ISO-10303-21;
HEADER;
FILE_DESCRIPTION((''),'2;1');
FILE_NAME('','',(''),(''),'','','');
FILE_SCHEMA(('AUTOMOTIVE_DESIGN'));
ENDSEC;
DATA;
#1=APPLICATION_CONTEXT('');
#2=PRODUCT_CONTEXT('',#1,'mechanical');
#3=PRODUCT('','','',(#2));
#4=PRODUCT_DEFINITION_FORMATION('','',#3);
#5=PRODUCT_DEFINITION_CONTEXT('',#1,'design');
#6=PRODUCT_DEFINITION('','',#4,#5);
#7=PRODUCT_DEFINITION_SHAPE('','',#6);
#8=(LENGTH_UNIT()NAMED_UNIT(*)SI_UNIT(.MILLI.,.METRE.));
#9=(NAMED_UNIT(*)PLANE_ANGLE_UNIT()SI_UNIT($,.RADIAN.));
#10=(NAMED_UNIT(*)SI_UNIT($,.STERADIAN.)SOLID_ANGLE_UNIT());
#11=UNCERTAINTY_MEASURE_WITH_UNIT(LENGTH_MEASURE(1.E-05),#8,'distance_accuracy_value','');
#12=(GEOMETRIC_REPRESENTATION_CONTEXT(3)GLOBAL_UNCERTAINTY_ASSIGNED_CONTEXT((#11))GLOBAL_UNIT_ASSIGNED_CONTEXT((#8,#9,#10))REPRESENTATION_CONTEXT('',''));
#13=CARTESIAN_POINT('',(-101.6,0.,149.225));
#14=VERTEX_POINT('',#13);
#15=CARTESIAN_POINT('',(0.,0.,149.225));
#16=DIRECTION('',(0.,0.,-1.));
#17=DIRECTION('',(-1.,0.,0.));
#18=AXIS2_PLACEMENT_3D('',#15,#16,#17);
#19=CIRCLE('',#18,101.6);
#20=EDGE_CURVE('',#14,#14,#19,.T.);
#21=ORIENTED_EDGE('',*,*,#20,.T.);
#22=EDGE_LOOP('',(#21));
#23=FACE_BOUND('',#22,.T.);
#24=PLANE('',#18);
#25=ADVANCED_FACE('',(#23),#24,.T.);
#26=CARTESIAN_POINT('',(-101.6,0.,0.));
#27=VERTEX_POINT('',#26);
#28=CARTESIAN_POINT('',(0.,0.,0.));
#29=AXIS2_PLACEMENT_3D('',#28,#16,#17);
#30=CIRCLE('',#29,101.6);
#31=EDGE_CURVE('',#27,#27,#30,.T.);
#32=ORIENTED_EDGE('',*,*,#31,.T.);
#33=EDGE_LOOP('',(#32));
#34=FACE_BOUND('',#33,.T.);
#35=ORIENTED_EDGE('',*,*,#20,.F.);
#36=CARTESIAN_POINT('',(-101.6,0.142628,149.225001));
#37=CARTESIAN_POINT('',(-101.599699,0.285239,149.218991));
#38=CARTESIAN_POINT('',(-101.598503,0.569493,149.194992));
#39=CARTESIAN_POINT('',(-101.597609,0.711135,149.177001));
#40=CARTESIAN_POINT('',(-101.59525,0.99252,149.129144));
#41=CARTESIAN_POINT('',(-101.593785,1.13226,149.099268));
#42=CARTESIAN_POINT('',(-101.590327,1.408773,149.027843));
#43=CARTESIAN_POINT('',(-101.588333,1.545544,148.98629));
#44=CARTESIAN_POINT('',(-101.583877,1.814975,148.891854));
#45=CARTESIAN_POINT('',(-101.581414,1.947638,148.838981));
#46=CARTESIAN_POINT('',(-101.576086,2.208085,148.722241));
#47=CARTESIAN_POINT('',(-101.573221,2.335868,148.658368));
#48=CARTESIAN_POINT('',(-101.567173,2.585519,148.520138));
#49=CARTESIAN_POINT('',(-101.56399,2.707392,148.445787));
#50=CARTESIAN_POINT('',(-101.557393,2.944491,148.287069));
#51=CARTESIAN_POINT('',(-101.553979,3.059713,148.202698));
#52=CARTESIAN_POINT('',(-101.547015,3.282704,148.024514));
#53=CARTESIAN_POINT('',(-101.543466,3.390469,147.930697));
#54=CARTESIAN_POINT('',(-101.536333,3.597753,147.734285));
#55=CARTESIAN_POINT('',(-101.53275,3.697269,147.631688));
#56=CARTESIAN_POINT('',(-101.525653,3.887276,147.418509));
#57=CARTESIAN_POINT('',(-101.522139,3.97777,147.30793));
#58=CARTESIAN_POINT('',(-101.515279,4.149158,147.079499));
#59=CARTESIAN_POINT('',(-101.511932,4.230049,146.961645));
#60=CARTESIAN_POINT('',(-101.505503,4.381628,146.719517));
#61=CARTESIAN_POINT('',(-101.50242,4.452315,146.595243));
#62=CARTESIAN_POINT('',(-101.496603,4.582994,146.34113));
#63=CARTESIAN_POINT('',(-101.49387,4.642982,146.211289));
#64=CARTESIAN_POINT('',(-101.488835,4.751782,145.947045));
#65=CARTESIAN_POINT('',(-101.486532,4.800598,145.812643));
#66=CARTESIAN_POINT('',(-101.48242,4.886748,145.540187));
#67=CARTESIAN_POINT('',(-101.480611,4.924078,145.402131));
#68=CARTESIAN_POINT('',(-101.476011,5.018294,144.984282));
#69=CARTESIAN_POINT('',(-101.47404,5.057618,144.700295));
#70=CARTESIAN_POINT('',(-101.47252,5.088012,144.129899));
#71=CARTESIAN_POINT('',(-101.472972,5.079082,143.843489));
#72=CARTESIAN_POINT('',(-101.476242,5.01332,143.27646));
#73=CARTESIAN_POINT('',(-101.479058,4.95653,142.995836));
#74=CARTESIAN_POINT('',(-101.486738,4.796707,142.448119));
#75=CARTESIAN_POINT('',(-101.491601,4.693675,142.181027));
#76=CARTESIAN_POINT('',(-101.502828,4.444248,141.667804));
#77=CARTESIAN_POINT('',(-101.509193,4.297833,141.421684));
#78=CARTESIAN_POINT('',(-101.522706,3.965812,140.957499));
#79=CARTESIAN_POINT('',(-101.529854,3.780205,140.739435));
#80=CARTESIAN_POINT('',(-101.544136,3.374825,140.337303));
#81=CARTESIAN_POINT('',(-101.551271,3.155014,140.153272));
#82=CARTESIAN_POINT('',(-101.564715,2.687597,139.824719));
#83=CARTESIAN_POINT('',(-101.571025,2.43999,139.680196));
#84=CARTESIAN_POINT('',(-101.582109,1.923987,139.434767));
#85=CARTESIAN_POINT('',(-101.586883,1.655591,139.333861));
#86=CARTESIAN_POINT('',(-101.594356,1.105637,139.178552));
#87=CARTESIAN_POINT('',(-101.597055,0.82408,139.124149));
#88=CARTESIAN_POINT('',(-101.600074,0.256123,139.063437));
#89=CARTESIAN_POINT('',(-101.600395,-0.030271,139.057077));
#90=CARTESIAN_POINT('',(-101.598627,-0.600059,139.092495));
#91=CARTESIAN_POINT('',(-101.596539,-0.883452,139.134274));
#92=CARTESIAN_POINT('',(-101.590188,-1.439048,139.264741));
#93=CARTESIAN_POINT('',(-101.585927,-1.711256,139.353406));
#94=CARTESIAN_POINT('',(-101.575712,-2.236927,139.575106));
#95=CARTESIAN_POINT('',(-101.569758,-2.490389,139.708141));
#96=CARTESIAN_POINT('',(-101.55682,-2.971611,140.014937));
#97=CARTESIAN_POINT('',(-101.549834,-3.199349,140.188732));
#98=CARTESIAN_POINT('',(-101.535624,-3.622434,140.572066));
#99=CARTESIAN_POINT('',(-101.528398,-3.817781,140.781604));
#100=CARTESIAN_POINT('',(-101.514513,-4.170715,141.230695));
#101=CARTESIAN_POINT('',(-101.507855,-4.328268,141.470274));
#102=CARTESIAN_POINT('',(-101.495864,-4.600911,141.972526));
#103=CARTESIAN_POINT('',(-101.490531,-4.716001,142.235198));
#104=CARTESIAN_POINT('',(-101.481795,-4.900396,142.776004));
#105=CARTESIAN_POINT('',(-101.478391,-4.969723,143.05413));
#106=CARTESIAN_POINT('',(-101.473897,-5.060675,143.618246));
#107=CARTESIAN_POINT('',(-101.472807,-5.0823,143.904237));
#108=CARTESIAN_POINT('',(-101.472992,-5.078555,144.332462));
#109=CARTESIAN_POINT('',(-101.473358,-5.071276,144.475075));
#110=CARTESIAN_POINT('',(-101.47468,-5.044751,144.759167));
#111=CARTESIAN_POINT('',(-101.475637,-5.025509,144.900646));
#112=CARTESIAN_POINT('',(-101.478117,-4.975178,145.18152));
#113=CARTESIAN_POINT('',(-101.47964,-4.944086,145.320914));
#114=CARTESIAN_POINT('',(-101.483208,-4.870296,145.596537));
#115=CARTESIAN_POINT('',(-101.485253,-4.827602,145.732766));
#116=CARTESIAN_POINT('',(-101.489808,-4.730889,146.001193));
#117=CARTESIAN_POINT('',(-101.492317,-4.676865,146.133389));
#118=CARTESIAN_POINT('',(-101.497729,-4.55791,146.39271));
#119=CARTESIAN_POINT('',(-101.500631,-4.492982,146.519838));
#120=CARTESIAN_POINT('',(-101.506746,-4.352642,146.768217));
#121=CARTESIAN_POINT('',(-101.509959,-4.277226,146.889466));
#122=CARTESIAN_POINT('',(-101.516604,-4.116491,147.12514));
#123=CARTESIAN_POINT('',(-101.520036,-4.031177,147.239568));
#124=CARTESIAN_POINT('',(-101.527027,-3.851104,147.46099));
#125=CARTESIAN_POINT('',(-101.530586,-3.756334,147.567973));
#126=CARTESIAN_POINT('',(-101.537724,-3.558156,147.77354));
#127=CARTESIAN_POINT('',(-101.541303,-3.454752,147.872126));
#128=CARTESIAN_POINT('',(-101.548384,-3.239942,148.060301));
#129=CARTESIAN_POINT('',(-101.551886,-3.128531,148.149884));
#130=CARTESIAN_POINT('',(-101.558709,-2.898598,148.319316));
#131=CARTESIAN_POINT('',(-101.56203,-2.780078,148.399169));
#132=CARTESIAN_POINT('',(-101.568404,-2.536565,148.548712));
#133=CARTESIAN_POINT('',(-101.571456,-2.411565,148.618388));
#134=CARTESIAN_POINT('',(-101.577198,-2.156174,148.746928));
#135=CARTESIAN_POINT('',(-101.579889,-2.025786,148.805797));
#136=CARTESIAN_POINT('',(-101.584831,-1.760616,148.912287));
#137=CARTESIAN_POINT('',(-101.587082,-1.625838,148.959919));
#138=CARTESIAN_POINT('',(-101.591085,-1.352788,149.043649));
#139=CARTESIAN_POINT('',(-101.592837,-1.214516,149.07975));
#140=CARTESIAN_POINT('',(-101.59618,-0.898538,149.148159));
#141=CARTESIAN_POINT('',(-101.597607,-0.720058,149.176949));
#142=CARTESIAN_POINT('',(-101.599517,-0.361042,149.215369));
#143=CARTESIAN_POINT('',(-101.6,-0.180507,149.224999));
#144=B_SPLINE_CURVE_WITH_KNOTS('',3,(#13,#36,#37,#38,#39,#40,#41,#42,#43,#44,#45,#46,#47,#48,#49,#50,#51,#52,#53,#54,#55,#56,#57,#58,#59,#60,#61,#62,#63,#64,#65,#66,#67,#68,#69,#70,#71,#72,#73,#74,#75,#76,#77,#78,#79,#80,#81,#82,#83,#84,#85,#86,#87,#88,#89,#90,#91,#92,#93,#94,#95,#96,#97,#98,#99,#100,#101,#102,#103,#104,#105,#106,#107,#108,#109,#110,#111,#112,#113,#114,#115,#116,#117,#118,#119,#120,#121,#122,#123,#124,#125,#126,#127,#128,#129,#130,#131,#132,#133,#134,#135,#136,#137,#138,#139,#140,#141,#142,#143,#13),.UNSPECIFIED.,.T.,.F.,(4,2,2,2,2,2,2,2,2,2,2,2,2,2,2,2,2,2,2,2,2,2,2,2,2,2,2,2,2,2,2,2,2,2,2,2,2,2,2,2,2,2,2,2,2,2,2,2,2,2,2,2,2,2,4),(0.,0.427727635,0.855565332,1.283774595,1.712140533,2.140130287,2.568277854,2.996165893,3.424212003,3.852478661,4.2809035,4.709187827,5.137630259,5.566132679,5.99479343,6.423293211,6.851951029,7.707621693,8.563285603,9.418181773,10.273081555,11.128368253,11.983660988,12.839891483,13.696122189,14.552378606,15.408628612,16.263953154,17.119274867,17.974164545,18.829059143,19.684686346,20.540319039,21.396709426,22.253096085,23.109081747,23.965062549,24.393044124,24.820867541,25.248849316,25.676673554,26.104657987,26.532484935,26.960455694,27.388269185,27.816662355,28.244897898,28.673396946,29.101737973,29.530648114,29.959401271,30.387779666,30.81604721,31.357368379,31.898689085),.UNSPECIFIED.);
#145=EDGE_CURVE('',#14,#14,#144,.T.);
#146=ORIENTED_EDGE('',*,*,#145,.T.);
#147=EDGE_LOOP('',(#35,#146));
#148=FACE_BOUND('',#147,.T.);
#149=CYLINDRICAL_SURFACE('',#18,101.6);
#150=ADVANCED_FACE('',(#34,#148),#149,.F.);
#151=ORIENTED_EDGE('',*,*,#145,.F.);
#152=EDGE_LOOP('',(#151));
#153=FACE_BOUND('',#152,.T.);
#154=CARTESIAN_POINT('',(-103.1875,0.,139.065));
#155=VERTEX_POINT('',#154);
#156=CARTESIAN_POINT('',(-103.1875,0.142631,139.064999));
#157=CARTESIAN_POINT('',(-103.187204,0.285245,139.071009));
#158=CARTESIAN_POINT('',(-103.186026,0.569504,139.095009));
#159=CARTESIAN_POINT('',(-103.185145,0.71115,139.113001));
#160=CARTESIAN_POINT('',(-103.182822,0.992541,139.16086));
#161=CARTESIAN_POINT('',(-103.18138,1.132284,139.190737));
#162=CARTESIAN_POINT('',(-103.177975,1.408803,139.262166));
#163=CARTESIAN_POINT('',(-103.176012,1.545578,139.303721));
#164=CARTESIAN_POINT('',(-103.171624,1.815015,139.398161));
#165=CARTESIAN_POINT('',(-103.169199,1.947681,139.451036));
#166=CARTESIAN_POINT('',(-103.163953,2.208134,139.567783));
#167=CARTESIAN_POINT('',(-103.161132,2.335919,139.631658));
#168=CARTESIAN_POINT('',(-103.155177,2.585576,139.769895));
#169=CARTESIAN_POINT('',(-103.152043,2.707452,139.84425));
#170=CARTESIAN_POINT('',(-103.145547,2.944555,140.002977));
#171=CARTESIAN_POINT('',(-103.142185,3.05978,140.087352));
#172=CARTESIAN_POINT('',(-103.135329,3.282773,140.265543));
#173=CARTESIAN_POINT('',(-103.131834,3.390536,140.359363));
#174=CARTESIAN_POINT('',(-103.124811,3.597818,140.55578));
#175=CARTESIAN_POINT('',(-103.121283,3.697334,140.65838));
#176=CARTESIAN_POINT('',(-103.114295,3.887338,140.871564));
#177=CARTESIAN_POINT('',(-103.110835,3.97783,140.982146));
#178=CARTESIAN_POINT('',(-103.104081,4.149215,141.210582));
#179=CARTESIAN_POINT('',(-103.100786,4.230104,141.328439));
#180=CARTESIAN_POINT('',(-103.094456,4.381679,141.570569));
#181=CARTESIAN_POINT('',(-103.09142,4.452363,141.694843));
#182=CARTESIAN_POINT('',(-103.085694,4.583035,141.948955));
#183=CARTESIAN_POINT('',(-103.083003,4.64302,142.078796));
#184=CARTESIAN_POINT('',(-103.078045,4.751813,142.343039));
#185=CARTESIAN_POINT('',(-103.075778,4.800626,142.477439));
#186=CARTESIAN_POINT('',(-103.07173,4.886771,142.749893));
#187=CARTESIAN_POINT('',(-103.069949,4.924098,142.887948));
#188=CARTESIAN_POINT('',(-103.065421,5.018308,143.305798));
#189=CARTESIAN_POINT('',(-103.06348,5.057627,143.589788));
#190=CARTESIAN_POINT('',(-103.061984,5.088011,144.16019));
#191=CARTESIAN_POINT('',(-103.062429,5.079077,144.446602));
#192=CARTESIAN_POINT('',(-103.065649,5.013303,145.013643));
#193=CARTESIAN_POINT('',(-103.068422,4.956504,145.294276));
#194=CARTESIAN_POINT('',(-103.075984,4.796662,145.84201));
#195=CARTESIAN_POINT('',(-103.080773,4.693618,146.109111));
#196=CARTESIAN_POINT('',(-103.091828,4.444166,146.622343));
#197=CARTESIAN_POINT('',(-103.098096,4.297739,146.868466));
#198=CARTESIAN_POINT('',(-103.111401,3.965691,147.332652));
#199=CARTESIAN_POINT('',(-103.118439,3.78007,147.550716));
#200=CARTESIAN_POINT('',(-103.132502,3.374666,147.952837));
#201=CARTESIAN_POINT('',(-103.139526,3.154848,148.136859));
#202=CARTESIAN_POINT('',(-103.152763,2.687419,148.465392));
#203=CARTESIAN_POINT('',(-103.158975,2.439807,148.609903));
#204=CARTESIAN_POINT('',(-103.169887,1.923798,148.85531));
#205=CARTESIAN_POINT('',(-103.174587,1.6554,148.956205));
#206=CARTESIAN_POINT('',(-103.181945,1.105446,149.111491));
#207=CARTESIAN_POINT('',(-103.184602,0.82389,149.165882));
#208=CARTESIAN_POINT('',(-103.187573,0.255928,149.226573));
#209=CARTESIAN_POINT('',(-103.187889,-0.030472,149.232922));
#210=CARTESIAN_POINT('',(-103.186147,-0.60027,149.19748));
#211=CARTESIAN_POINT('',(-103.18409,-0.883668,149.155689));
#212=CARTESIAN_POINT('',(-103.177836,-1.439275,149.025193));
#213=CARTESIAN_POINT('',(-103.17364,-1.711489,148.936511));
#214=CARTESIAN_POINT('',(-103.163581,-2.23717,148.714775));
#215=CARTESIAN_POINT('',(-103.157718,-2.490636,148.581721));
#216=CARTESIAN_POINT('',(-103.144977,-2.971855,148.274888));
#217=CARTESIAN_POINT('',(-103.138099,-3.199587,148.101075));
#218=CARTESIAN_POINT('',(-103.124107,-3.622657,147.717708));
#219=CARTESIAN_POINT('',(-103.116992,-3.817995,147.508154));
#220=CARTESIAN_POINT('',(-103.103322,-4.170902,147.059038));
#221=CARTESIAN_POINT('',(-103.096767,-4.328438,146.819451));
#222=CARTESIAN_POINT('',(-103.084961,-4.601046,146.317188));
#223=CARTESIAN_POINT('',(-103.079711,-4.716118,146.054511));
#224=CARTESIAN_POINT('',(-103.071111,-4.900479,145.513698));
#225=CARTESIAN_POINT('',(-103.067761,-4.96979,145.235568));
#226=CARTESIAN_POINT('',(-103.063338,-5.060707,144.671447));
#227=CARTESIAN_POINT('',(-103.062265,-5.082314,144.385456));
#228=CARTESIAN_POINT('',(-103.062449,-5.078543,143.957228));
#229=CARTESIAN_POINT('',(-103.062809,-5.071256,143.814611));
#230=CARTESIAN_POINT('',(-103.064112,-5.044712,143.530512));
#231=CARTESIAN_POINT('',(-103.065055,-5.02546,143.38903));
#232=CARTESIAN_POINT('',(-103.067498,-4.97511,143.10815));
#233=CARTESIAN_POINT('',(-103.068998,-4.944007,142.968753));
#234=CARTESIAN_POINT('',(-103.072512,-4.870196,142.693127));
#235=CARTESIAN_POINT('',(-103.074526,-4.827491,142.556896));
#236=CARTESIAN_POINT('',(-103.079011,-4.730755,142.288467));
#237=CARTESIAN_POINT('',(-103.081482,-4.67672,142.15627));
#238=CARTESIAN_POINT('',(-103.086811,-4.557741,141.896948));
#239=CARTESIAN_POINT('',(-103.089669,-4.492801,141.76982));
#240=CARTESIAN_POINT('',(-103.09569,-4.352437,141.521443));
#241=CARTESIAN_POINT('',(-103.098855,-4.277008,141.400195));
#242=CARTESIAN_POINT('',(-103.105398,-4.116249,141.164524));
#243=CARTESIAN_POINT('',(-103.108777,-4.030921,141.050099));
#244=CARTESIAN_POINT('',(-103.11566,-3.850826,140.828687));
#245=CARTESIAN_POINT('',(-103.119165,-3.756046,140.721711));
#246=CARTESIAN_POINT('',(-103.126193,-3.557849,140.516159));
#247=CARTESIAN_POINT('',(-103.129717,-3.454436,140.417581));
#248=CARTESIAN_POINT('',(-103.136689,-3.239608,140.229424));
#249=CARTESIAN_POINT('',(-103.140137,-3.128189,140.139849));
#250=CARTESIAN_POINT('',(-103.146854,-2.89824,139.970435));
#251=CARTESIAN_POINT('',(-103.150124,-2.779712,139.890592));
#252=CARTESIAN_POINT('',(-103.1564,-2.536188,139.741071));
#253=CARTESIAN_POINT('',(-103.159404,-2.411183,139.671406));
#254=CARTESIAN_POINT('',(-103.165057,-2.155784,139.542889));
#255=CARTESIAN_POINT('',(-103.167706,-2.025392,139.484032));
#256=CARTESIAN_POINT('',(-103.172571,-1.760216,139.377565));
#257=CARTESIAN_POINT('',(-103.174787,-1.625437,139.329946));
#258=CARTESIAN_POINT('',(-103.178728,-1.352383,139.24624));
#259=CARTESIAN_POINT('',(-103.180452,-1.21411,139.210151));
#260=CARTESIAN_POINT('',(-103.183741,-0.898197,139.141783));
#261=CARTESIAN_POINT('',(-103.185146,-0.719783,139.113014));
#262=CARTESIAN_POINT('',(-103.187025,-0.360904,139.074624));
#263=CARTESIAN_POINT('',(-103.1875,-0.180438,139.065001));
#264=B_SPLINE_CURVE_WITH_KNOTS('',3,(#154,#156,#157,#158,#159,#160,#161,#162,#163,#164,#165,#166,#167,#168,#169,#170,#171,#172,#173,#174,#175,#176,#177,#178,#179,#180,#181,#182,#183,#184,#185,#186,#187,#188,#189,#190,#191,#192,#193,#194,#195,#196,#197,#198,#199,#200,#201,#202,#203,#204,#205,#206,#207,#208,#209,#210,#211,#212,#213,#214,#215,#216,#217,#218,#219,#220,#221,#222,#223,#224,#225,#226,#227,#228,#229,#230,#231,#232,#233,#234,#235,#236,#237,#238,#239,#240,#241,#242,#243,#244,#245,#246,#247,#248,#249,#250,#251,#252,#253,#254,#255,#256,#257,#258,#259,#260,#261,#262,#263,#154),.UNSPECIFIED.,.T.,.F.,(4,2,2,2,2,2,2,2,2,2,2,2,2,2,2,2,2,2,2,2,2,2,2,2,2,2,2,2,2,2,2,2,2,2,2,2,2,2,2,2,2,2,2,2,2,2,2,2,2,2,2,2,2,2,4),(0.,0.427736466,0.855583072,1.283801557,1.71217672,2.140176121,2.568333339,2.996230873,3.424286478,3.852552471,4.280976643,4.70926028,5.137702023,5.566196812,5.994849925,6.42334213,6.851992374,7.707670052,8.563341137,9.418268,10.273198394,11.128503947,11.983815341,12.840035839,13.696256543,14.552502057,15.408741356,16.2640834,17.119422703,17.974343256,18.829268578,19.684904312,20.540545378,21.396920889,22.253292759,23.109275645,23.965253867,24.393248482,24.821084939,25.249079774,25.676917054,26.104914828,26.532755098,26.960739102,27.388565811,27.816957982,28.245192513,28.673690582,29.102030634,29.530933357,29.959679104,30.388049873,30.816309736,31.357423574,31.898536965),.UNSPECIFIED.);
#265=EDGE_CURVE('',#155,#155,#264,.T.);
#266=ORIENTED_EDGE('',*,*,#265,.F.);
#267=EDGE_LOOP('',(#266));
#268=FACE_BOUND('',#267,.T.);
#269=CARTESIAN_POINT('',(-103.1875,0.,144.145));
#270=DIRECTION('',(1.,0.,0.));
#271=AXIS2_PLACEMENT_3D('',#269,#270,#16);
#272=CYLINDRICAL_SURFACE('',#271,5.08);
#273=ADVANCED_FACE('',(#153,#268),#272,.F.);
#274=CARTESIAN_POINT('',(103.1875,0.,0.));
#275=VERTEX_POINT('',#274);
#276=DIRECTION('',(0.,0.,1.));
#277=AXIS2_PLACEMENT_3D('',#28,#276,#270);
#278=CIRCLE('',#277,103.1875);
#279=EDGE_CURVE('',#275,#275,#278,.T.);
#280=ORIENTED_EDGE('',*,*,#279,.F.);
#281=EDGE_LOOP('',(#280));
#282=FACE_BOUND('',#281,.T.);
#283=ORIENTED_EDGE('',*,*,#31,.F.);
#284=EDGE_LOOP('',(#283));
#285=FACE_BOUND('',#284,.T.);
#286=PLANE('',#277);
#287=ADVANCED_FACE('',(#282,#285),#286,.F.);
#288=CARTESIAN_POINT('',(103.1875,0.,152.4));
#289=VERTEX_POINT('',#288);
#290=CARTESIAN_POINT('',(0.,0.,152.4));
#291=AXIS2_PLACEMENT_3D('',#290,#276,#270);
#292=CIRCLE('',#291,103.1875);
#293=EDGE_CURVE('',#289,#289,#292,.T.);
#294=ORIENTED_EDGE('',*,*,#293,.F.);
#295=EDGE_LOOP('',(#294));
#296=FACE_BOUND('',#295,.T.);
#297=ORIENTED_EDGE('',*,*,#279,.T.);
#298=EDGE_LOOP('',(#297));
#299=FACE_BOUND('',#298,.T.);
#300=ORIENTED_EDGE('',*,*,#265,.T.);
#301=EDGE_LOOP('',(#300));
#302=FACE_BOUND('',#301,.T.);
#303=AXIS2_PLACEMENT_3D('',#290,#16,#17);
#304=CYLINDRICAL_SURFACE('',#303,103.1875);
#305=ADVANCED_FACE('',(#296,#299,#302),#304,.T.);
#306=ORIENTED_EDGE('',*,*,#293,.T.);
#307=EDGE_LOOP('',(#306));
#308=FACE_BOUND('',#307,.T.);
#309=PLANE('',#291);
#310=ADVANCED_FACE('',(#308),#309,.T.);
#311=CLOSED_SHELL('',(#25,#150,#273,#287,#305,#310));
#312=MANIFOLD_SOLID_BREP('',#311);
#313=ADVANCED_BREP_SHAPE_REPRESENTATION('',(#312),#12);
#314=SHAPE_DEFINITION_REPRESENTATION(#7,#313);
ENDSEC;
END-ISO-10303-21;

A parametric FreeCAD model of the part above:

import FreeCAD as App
import Part
import Sketcher
from FreeCAD import Vector
Q = App.Units.Quantity

doc = App.newDocument("Part")
body = doc.addObject("PartDesign::Body", "Body")

sketch1 = body.newObject("Sketcher::SketchObject", "Sketch")
sketch1.AttachmentSupport = (doc.getObject("XY_Plane"), [""])
sketch1.MapMode = "FlatFace"
sketch1.addGeometry(Part.Circle(Vector(0, 0, 0), Vector(0, 0, 1), 103), False)
sketch1.addConstraint(Sketcher.Constraint("Coincident", 0, 3, -1, 1))
sketch1.addConstraint(Sketcher.Constraint("Diameter", 0, Q("8.125 in")))
pad1 = body.newObject("PartDesign::Pad", "Pad")
pad1.Profile = sketch1
pad1.Length = Q("6 in")

sketch2 = body.newObject("Sketcher::SketchObject", "Sketch001")
sketch2.AttachmentSupport = (doc.getObject("XY_Plane"), [""])
sketch2.MapMode = "FlatFace"
sketch2.addGeometry(Part.Circle(Vector(0, 0, 0), Vector(0, 0, 1), 102), False)
sketch2.addConstraint(Sketcher.Constraint("Coincident", 0, 3, -1, 1))
sketch2.addConstraint(Sketcher.Constraint("Diameter", 0, Q("8 in")))
pocket1 = body.newObject("PartDesign::Pocket", "Pocket")
pocket1.Profile = sketch2
pocket1.Length = Q("5.875 in")
pocket1.Reversed = True

sketch3 = body.newObject("Sketcher::SketchObject", "Sketch002")
sketch3.AttachmentSupport = (doc.getObject("YZ_Plane"), [""])
sketch3.MapMode = "FlatFace"
sketch3.addGeometry(Part.Circle(Vector(0, 144, 0), Vector(0, 0, 1), 5), False)
sketch3.addConstraint(Sketcher.Constraint("PointOnObject", 0, 3, -2))
sketch3.addConstraint(Sketcher.Constraint("Diameter", 0, Q("0.4 in")))
sketch3.addConstraint(Sketcher.Constraint("DistanceY", -1, 1, 0, 3, Q("5.675 in")))
pocket2 = body.newObject("PartDesign::Pocket", "Pocket001")
pocket2.Profile = sketch3
pocket2.Type = "ThroughAll"

doc.recompute()
